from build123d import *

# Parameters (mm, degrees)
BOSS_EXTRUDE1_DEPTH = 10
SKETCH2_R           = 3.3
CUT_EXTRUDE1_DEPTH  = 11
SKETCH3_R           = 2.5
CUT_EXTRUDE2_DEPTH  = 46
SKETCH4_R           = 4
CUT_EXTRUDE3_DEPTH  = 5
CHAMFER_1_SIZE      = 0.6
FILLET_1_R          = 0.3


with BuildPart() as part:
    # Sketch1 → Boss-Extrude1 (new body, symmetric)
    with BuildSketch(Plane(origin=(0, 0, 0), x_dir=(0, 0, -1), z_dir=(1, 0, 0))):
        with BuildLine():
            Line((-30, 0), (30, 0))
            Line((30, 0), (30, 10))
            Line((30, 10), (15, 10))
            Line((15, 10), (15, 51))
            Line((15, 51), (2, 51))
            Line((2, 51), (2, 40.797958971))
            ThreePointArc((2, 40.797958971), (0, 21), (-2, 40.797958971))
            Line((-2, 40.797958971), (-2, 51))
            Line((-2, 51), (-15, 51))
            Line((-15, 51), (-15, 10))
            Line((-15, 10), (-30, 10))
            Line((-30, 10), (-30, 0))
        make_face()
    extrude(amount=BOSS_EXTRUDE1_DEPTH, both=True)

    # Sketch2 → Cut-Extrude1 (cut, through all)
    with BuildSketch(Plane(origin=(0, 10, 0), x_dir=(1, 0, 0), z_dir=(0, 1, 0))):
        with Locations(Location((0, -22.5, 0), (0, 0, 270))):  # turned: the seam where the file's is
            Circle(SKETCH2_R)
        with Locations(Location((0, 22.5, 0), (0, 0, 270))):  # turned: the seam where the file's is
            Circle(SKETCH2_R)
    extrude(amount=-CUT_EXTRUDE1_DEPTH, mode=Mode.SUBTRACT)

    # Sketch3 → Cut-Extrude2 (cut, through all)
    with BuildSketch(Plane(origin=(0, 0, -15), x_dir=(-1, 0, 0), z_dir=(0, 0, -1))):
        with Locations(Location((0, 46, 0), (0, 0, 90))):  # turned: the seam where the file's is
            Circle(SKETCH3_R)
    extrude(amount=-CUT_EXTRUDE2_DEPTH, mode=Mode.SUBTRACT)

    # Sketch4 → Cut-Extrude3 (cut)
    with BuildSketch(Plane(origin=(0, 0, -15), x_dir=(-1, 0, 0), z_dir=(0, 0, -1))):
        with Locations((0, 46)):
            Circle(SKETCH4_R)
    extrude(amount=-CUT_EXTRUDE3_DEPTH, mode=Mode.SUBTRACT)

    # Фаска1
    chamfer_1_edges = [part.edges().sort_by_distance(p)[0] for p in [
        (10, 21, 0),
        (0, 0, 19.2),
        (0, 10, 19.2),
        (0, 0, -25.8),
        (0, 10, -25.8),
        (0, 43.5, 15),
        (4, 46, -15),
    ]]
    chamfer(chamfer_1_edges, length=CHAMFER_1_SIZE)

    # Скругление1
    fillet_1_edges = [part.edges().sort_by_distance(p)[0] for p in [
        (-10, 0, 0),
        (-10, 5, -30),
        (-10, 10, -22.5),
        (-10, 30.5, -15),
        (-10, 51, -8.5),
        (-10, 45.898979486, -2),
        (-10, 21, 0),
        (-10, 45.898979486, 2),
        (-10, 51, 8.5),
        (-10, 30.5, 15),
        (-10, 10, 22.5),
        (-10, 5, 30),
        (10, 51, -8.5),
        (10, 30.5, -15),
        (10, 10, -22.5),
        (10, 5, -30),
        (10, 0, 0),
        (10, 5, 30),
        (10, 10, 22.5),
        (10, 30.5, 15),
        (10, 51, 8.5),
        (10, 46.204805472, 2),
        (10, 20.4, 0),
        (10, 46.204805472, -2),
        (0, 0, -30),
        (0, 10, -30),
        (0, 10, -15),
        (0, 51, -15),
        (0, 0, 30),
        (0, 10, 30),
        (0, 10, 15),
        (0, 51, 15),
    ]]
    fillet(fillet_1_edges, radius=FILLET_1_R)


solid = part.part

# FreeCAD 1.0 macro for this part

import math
import FreeCAD as App
import Part
import Sketcher


def edges_at(feature, points):
    """Names of the edges that pass closest to the given points."""
    edges = feature.Shape.Edges
    near = lambda p: min(range(len(edges)), key=lambda i: edges[i].distToShape(Part.Vertex(*p))[0])
    return sorted({f"Edge{near(p) + 1}" for p in points})

doc = App.newDocument("Part")
body = doc.addObject("PartDesign::Body", "Body")

# Sketch on YZ plane
sketch1 = body.newObject("Sketcher::SketchObject", "Sketch")
sketch1.AttachmentSupport = (doc.getObject("YZ_Plane"), [""])
sketch1.MapMode = "FlatFace"
sketch1.addGeometry(Part.LineSegment(App.Vector(0, 30, 0), App.Vector(0, -30, 0)), False)
sketch1.addGeometry(Part.LineSegment(App.Vector(0, -30, 0), App.Vector(10, -30, 0)), False)
sketch1.addGeometry(Part.LineSegment(App.Vector(10, -30, 0), App.Vector(10, -15, 0)), False)
sketch1.addGeometry(Part.LineSegment(App.Vector(10, -15, 0), App.Vector(51, -15, 0)), False)
sketch1.addGeometry(Part.LineSegment(App.Vector(51, -15, 0), App.Vector(51, -2, 0)), False)
sketch1.addGeometry(Part.LineSegment(App.Vector(51, -2, 0), App.Vector(40.8, -2, 0)), False)
sketch1.addGeometry(Part.ArcOfCircle(Part.Circle(App.Vector(31, 0, 0), App.Vector(0, 0, 1), 10), math.radians(12), math.radians(348)), False)
sketch1.addGeometry(Part.LineSegment(App.Vector(40.8, 2, 0), App.Vector(51, 2, 0)), False)
sketch1.addGeometry(Part.LineSegment(App.Vector(51, 2, 0), App.Vector(51, 15, 0)), False)
sketch1.addGeometry(Part.LineSegment(App.Vector(51, 15, 0), App.Vector(10, 15, 0)), False)
sketch1.addGeometry(Part.LineSegment(App.Vector(10, 15, 0), App.Vector(10, 30, 0)), False)
sketch1.addGeometry(Part.LineSegment(App.Vector(10, 30, 0), App.Vector(0, 30, 0)), False)
sketch1.addConstraint(Sketcher.Constraint("Coincident", 0, 2, 1, 1))
sketch1.addConstraint(Sketcher.Constraint("Coincident", 1, 2, 2, 1))
sketch1.addConstraint(Sketcher.Constraint("Coincident", 2, 2, 3, 1))
sketch1.addConstraint(Sketcher.Constraint("Coincident", 3, 2, 4, 1))
sketch1.addConstraint(Sketcher.Constraint("Coincident", 4, 2, 5, 1))
sketch1.addConstraint(Sketcher.Constraint("Coincident", 5, 2, 6, 2))
sketch1.addConstraint(Sketcher.Constraint("Coincident", 6, 1, 7, 1))
sketch1.addConstraint(Sketcher.Constraint("Coincident", 7, 2, 8, 1))
sketch1.addConstraint(Sketcher.Constraint("Coincident", 8, 2, 9, 1))
sketch1.addConstraint(Sketcher.Constraint("Coincident", 9, 2, 10, 1))
sketch1.addConstraint(Sketcher.Constraint("Coincident", 10, 2, 11, 1))
sketch1.addConstraint(Sketcher.Constraint("Coincident", 11, 2, 0, 1))
sketch1.addConstraint(Sketcher.Constraint("Vertical", 0))
sketch1.addConstraint(Sketcher.Constraint("Horizontal", 1))
sketch1.addConstraint(Sketcher.Constraint("Vertical", 2))
sketch1.addConstraint(Sketcher.Constraint("Horizontal", 3))
sketch1.addConstraint(Sketcher.Constraint("Vertical", 4))
sketch1.addConstraint(Sketcher.Constraint("Horizontal", 5))
sketch1.addConstraint(Sketcher.Constraint("Horizontal", 7))
sketch1.addConstraint(Sketcher.Constraint("Vertical", 8))
sketch1.addConstraint(Sketcher.Constraint("Horizontal", 9))
sketch1.addConstraint(Sketcher.Constraint("Vertical", 10))
sketch1.addConstraint(Sketcher.Constraint("Horizontal", 11))
sketch1.addConstraint(Sketcher.Constraint("Symmetric", 0, 2, 11, 2, -1, 1))
sketch1.addConstraint(Sketcher.Constraint("Symmetric", 5, 2, 6, 1, -1))
sketch1.addConstraint(Sketcher.Constraint("Symmetric", 3, 2, 8, 2, -1))
sketch1.addConstraint(Sketcher.Constraint("Vertical", 2, 2, 9, 2))
sketch1.addConstraint(Sketcher.Constraint("Radius", 6, 10.0))
sketch1.addConstraint(Sketcher.Constraint("DistanceX", 1, 1, 1, 2, 10.0))
sketch1.addConstraint(Sketcher.Constraint("DistanceX", 3, 1, 3, 2, 41.0))
sketch1.addConstraint(Sketcher.Constraint("DistanceY", 0, 2, 0, 1, 60.0))
sketch1.addConstraint(Sketcher.Constraint("DistanceY", 2, 1, 2, 2, 15.0))
sketch1.addConstraint(Sketcher.Constraint("DistanceY", 4, 1, 4, 2, 13.0))
sketch1.addConstraint(Sketcher.Constraint("DistanceX", -1, 1, 6, 3, 31.0))
pad1 = body.newObject("PartDesign::Pad", "Pad")
pad1.Profile = sketch1
pad1.Length = 20
pad1.Midplane = True

# Sketch on XZ plane
sketch2 = body.newObject("Sketcher::SketchObject", "Sketch001")
sketch2.AttachmentSupport = (doc.getObject("XZ_Plane"), [""])
sketch2.MapMode = "FlatFace"
sketch2.AttachmentOffset = App.Placement(App.Vector(0, 0, -10), App.Rotation())
sketch2.addGeometry(Part.Circle(App.Vector(0, 22.5, 0), App.Vector(0, 0, 1), 3.3), False)
sketch2.addGeometry(Part.Circle(App.Vector(0, -22.5, 0), App.Vector(0, 0, 1), 3.3), False)
sketch2.addConstraint(Sketcher.Constraint("Equal", 0, 1))
sketch2.addConstraint(Sketcher.Constraint("Symmetric", 0, 3, 1, 3, -1, 1))
sketch2.addConstraint(Sketcher.Constraint("PointOnObject", 0, 3, -2))
sketch2.addConstraint(Sketcher.Constraint("Diameter", 0, 6.6))
sketch2.addConstraint(Sketcher.Constraint("DistanceY", 1, 3, 0, 3, 45.0))
pocket1 = body.newObject("PartDesign::Pocket", "Pocket")
pocket1.Profile = sketch2
pocket1.Type = "ThroughAll"
pocket1.Reversed = True

# Sketch on XY plane
sketch3 = body.newObject("Sketcher::SketchObject", "Sketch002")
sketch3.AttachmentSupport = (doc.getObject("XY_Plane"), [""])
sketch3.MapMode = "FlatFace"
sketch3.AttachmentOffset = App.Placement(App.Vector(0, 0, -15), App.Rotation())
sketch3.addGeometry(Part.Circle(App.Vector(0, 46, 0), App.Vector(0, 0, 1), 2.5), False)
sketch3.addConstraint(Sketcher.Constraint("PointOnObject", 0, 3, -2))
sketch3.addConstraint(Sketcher.Constraint("Diameter", 0, 5.0))
sketch3.addConstraint(Sketcher.Constraint("DistanceY", -1, 1, 0, 3, 46.0))
pocket2 = body.newObject("PartDesign::Pocket", "Pocket001")
pocket2.Profile = sketch3
pocket2.Type = "ThroughAll"
pocket2.Reversed = True

# Sketch on XY plane
sketch4 = body.newObject("Sketcher::SketchObject", "Sketch003")
sketch4.AttachmentSupport = (doc.getObject("XY_Plane"), [""])
sketch4.MapMode = "FlatFace"
sketch4.AttachmentOffset = App.Placement(App.Vector(0, 0, -15), App.Rotation())
sketch4.addGeometry(Part.Circle(App.Vector(0, 46, 0), App.Vector(0, 0, 1), 4), False)
sketch4.addConstraint(Sketcher.Constraint("PointOnObject", 0, 3, -2))
sketch4.addConstraint(Sketcher.Constraint("Diameter", 0, 8.0))
sketch4.addConstraint(Sketcher.Constraint("DistanceY", -1, 1, 0, 3, 46.0))
pocket3 = body.newObject("PartDesign::Pocket", "Pocket002")
pocket3.Profile = sketch4
pocket3.Length = 5
pocket3.Reversed = True
doc.recompute()

chamfer = body.newObject("PartDesign::Chamfer", "Chamfer")
chamfer.Base = (pocket3, edges_at(pocket3, [
    (10, 21, 0),
    (0, 0, 19.2),
    (0, 10, 19.2),
    (0, 0, -25.8),
    (0, 10, -25.8),
    (0, 43.5, 15),
    (4, 46, -15),
]))
chamfer.Size = 0.6
doc.recompute()

fillet = body.newObject("PartDesign::Fillet", "Fillet")
fillet.Base = (chamfer, edges_at(chamfer, [
    (-10, 0, 0),
    (-10, 5, -30),
    (-10, 10, -22.5),
    (-10, 30.5, -15),
    (-10, 51, -8.5),
    (-10, 45.899, -2),
    (-10, 21, 0),
    (-10, 45.899, 2),
    (-10, 51, 8.5),
    (-10, 30.5, 15),
    (-10, 10, 22.5),
    (-10, 5, 30),
    (10, 51, -8.5),
    (10, 30.5, -15),
    (10, 10, -22.5),
    (10, 5, -30),
    (10, 0, 0),
    (10, 5, 30),
    (10, 10, 22.5),
    (10, 30.5, 15),
    (10, 51, 8.5),
    (10, 46.205, 2),
    (10, 20.4, 0),
    (10, 46.205, -2),
    (0, 0, -30),
    (0, 10, -30),
    (0, 10, -15),
    (0, 51, -15),
    (0, 0, 30),
    (0, 10, 30),
    (0, 10, 15),
    (0, 51, 15),
]))
fillet.Radius = 0.3

doc.recompute()
